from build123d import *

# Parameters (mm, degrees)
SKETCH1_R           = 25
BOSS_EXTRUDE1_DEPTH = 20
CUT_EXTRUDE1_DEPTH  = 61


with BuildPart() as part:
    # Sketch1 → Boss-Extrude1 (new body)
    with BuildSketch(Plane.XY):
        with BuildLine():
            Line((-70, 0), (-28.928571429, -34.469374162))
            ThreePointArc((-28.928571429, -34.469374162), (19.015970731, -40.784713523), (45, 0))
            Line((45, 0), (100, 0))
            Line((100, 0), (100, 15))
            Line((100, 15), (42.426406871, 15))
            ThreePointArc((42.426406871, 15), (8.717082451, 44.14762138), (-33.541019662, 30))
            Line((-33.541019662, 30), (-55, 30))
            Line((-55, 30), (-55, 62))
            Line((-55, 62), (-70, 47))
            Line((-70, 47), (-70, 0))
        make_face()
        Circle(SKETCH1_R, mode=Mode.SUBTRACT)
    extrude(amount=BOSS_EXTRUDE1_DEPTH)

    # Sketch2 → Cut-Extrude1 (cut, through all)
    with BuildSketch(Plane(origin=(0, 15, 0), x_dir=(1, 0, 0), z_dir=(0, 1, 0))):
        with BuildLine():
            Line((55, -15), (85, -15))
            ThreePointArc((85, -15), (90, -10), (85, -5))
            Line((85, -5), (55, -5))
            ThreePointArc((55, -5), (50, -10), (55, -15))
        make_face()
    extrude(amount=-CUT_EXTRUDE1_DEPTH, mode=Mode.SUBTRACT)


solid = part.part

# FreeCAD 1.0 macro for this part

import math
import FreeCAD as App
import Part
import Sketcher
from FreeCAD import Vector
Q = App.Units.Quantity

doc = App.newDocument("Part")
params = doc.addObject("Spreadsheet::Sheet", "Params")
for row, (alias, value) in enumerate([
    ("sketch1_diameter", "50 mm"),
    ("sketch1_radius", "45 mm"),
    ("sketch1_width", "55 mm"),
    ("sketch1_height", "15 mm"),
    ("sketch1_height2", "32 mm"),
    ("pad1_length", "20 mm"),
    ("sketch2_radius", "5 mm"),
    ("sketch2_width", "30 mm"),
], start=1):
    params.set(f"A{row}", alias)
    params.set(f"B{row}", "=" + value)
    params.setAlias(f"B{row}", alias)

body = doc.addObject("PartDesign::Body", "Body")

# Sketch on XY plane
sketch1 = body.newObject("Sketcher::SketchObject", "Sketch")
sketch1.AttachmentSupport = (doc.getObject("XY_Plane"), [""])
sketch1.MapMode = "FlatFace"
sketch1.addGeometry(Part.LineSegment(Vector(-70, 0, 0), Vector(-28.928571, -34.469374, 0)), False)
sketch1.addGeometry(Part.ArcOfCircle(Part.Circle(Vector(0, 0, 0), Vector(0, 0, 1), 45), math.radians(-130.005201), math.radians(0)), False)
sketch1.addGeometry(Part.LineSegment(Vector(45, 0, 0), Vector(100, 0, 0)), False)
sketch1.addGeometry(Part.LineSegment(Vector(100, 0, 0), Vector(100, 15, 0)), False)
sketch1.addGeometry(Part.LineSegment(Vector(100, 15, 0), Vector(42.426407, 15, 0)), False)
sketch1.addGeometry(Part.ArcOfCircle(Part.Circle(Vector(0, 0, 0), Vector(0, 0, 1), 45), math.radians(19.471221), math.radians(138.189685)), False)
sketch1.addGeometry(Part.LineSegment(Vector(-33.54102, 30, 0), Vector(-55, 30, 0)), False)
sketch1.addGeometry(Part.LineSegment(Vector(-55, 30, 0), Vector(-55, 62, 0)), False)
sketch1.addGeometry(Part.LineSegment(Vector(-55, 62, 0), Vector(-70, 47, 0)), False)
sketch1.addGeometry(Part.LineSegment(Vector(-70, 47, 0), Vector(-70, 0, 0)), False)
sketch1.addGeometry(Part.Circle(Vector(0, 0, 0), Vector(0, 0, 1), 25), False)
sketch1.addConstraint(Sketcher.Constraint("Tangent", 0, 2, 1, 1))
sketch1.addConstraint(Sketcher.Constraint("Coincident", 1, 2, 2, 1))
sketch1.addConstraint(Sketcher.Constraint("Coincident", 2, 2, 3, 1))
sketch1.addConstraint(Sketcher.Constraint("Coincident", 3, 2, 4, 1))
sketch1.addConstraint(Sketcher.Constraint("Coincident", 4, 2, 5, 1))
sketch1.addConstraint(Sketcher.Constraint("Coincident", 5, 2, 6, 1))
sketch1.addConstraint(Sketcher.Constraint("Coincident", 6, 2, 7, 1))
sketch1.addConstraint(Sketcher.Constraint("Coincident", 7, 2, 8, 1))
sketch1.addConstraint(Sketcher.Constraint("Coincident", 8, 2, 9, 1))
sketch1.addConstraint(Sketcher.Constraint("Coincident", 9, 2, 0, 1))
sketch1.addConstraint(Sketcher.Constraint("Horizontal", 2))
sketch1.addConstraint(Sketcher.Constraint("Vertical", 3))
sketch1.addConstraint(Sketcher.Constraint("Horizontal", 4))
sketch1.addConstraint(Sketcher.Constraint("Horizontal", 6))
sketch1.addConstraint(Sketcher.Constraint("Vertical", 7))
sketch1.addConstraint(Sketcher.Constraint("Vertical", 9))
sketch1.addConstraint(Sketcher.Constraint("Coincident", 1, 3, -1, 1))
sketch1.addConstraint(Sketcher.Constraint("Coincident", 5, 3, -1, 1))
sketch1.addConstraint(Sketcher.Constraint("Coincident", 10, 3, -1, 1))
sketch1.addConstraint(Sketcher.Constraint("Equal", 1, 5))
sketch1.addConstraint(Sketcher.Constraint("PointOnObject", 1, 2, -1))
sketch1.addConstraint(Sketcher.Constraint("PointOnObject", 9, 2, -1))
sketch1.addConstraint(Sketcher.Constraint("Diameter", 10, Q("50 mm")))
sketch1.addConstraint(Sketcher.Constraint("Radius", 1, Q("45 mm")))
sketch1.addConstraint(Sketcher.Constraint("DistanceX", 2, 1, 2, 2, Q("55 mm")))
sketch1.addConstraint(Sketcher.Constraint("DistanceY", 3, 1, 3, 2, Q("15 mm")))
sketch1.addConstraint(Sketcher.Constraint("DistanceY", 7, 1, 7, 2, Q("32 mm")))
sketch1.addConstraint(Sketcher.Constraint("DistanceY", 9, 2, 9, 1, Q("47 mm")))
sketch1.addConstraint(Sketcher.Constraint("Angle", 8, Q("-135 deg")))
sketch1.addConstraint(Sketcher.Constraint("DistanceY", -1, 1, 5, 2, Q("30 mm")))
sketch1.addConstraint(Sketcher.Constraint("DistanceX", 6, 2, -1, 1, Q("55 mm")))
sketch1.setExpression("Constraints[22]", "Params.sketch1_diameter")
sketch1.setExpression("Constraints[23]", "Params.sketch1_radius")
sketch1.setExpression("Constraints[24]", "Params.sketch1_width")
sketch1.setExpression("Constraints[25]", "Params.sketch1_height")
sketch1.setExpression("Constraints[26]", "Params.sketch1_height2")
pad1 = body.newObject("PartDesign::Pad", "Pad")
pad1.Profile = sketch1
pad1.setExpression("Length", "Params.pad1_length")

# Sketch on XZ plane
sketch2 = body.newObject("Sketcher::SketchObject", "Sketch001")
sketch2.AttachmentSupport = (doc.getObject("XZ_Plane"), [""])
sketch2.MapMode = "FlatFace"
sketch2.AttachmentOffset = App.Placement(Vector(0, 0, -15), App.Rotation())
sketch2.addGeometry(Part.LineSegment(Vector(55, 15, 0), Vector(85, 15, 0)), False)
sketch2.addGeometry(Part.ArcOfCircle(Part.Circle(Vector(85, 10, 0), Vector(0, 0, 1), 5), math.radians(-90), math.radians(90)), False)
sketch2.addGeometry(Part.LineSegment(Vector(85, 5, 0), Vector(55, 5, 0)), False)
sketch2.addGeometry(Part.ArcOfCircle(Part.Circle(Vector(55, 10, 0), Vector(0, 0, 1), 5), math.radians(90), math.radians(270)), False)
sketch2.addConstraint(Sketcher.Constraint("Tangent", 0, 2, 1, 2))
sketch2.addConstraint(Sketcher.Constraint("Tangent", 1, 1, 2, 1))
sketch2.addConstraint(Sketcher.Constraint("Tangent", 2, 2, 3, 2))
sketch2.addConstraint(Sketcher.Constraint("Tangent", 3, 1, 0, 1))
sketch2.addConstraint(Sketcher.Constraint("Horizontal", 0))
sketch2.addConstraint(Sketcher.Constraint("Horizontal", 2))
sketch2.addConstraint(Sketcher.Constraint("Radius", 1, Q("5 mm")))
sketch2.addConstraint(Sketcher.Constraint("DistanceX", 0, 1, 0, 2, Q("30 mm")))
sketch2.addConstraint(Sketcher.Constraint("DistanceX", -1, 1, 1, 3, Q("85 mm")))
sketch2.addConstraint(Sketcher.Constraint("DistanceY", -1, 1, 1, 3, Q("10 mm")))
sketch2.setExpression("Constraints[6]", "Params.sketch2_radius")
sketch2.setExpression("Constraints[7]", "Params.sketch2_width")
pocket1 = body.newObject("PartDesign::Pocket", "Pocket")
pocket1.Profile = sketch2
pocket1.Type = "ThroughAll"
pocket1.Reversed = True

doc.recompute()
